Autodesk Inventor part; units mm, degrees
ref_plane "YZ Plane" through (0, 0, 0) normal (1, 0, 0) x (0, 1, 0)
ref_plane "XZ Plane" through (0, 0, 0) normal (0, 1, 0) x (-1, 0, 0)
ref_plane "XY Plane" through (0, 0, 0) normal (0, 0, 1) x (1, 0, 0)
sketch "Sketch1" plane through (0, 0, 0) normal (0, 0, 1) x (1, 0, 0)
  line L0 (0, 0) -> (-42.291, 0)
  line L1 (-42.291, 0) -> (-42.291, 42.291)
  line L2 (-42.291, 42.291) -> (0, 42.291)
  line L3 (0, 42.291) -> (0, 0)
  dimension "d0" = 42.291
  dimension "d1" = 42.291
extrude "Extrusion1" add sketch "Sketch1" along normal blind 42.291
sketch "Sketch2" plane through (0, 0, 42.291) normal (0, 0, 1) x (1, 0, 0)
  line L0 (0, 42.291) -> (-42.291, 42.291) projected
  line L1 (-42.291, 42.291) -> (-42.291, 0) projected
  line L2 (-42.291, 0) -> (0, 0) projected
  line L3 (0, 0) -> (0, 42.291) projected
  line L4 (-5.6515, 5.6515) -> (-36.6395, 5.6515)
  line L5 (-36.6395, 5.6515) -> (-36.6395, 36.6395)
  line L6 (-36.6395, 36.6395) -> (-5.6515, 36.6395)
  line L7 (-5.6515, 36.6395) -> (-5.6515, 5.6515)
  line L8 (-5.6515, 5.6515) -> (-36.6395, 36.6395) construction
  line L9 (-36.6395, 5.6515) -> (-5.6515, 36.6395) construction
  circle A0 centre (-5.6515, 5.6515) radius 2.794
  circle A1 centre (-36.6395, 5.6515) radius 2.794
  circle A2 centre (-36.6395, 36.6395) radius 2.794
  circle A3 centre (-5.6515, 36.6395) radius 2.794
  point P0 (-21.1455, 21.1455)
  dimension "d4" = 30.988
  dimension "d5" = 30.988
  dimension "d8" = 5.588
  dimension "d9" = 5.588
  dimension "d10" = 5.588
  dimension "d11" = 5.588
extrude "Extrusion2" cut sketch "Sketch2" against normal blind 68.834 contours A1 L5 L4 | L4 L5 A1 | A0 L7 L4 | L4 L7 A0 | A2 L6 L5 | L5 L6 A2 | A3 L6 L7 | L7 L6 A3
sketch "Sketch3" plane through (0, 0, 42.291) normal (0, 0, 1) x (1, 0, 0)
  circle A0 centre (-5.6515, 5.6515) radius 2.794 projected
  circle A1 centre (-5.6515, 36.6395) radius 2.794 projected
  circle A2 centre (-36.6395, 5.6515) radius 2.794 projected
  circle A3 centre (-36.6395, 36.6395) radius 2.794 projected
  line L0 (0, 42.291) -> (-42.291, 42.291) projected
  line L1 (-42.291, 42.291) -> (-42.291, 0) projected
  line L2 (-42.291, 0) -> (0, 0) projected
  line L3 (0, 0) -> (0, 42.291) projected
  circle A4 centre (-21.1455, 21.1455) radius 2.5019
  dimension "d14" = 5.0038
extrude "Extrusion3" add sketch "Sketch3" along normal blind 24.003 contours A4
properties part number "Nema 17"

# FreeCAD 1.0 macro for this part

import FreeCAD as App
import Part
import Sketcher

V = App.Vector
Q = App.Units.Quantity


def add_polygon(sketch, points):
    """Adds a closed chain of lines whose ends are joined by coincident constraints."""
    first, n = sketch.GeometryCount, len(points)
    for a, b in zip(points, points[1:] + points[:1]):
        sketch.addGeometry(Part.LineSegment(App.Vector(*a, 0), App.Vector(*b, 0)), False)
    for i in range(n):
        sketch.addConstraint(Sketcher.Constraint("Coincident", first + i, 2, first + (i + 1) % n, 1))

doc = App.newDocument("Part")
params = doc.addObject("Spreadsheet::Sheet", "Params")
for row, (alias, value) in enumerate([
    ("sketch1_width", "1.665 in"),
    ("pad1_length", "1.665 in"),
    ("sketch2_diameter", "0.22 in"),
    ("pocket1_length", "2.71 in"),
    ("sketch3_diameter", "0.197 in"),
    ("pad2_length", "0.945 in"),
], start=1):
    params.set(f"A{row}", alias)
    params.set(f"B{row}", "=" + value)
    params.setAlias(f"B{row}", alias)

body = doc.addObject("PartDesign::Body", "Body")

# Sketch on XY plane
sketch1 = doc.addObject("Sketcher::SketchObject", "Sketch")
body.addObject(sketch1)
sketch1.AttachmentSupport = (doc.XY_Plane, [""])
sketch1.MapMode = "FlatFace"
add_polygon(sketch1, [(-42, 0), (0, 0), (0, 42), (-42, 42)])  # lines 0-3
sketch1.addConstraint(Sketcher.Constraint("Horizontal", 0))
sketch1.addConstraint(Sketcher.Constraint("Vertical", 1))
sketch1.addConstraint(Sketcher.Constraint("Horizontal", 2))
sketch1.addConstraint(Sketcher.Constraint("Vertical", 3))
sketch1.addConstraint(Sketcher.Constraint("Coincident", 0, 2, -1, 1))
sketch1.addConstraint(Sketcher.Constraint("Equal", 2, 1))
sketch1.addConstraint(Sketcher.Constraint("DistanceX", 0, 1, 0, 2, Q("1.665 in")))
sketch1.setExpression("Constraints[10]", "Params.sketch1_width")
pad1 = doc.addObject("PartDesign::Pad", "Pad")
body.addObject(pad1)
pad1.Profile = sketch1
pad1.setExpression("Length", "Params.pad1_length")

# Sketch on XY plane
sketch2 = doc.addObject("Sketcher::SketchObject", "Sketch001")
body.addObject(sketch2)
sketch2.AttachmentSupport = (doc.XY_Plane, [""])
sketch2.MapMode = "FlatFace"
sketch2.AttachmentOffset = App.Placement(V(0, 0, 1.665 * 25.4), App.Rotation())
sketch2.addGeometry(Part.Circle(V(-36.6, 5.7, 0), V(0, 0, 1), 2.8), False)
sketch2.addGeometry(Part.Circle(V(-5.7, 5.7, 0), V(0, 0, 1), 2.8), False)
sketch2.addGeometry(Part.Circle(V(-36.6, 36.6, 0), V(0, 0, 1), 2.8), False)
sketch2.addGeometry(Part.Circle(V(-5.7, 36.6, 0), V(0, 0, 1), 2.8), False)
sketch2.addConstraint(Sketcher.Constraint("Equal", 0, 1))
sketch2.addConstraint(Sketcher.Constraint("Equal", 1, 2))
sketch2.addConstraint(Sketcher.Constraint("Equal", 2, 3))
sketch2.addConstraint(Sketcher.Constraint("Horizontal", 0, 3, 1, 3))
sketch2.addConstraint(Sketcher.Constraint("Horizontal", 2, 3, 3, 3))
sketch2.addConstraint(Sketcher.Constraint("Vertical", 0, 3, 2, 3))
sketch2.addConstraint(Sketcher.Constraint("Vertical", 1, 3, 3, 3))
sketch2.addConstraint(Sketcher.Constraint("Diameter", 0, Q("0.22 in")))
sketch2.addConstraint(Sketcher.Constraint("DistanceX", 0, 3, 1, 3, Q("1.22 in")))
sketch2.addConstraint(Sketcher.Constraint("DistanceY", 0, 3, 2, 3, Q("1.22 in")))
sketch2.addConstraint(Sketcher.Constraint("DistanceX", 0, 3, -1, 1, Q("1.4425 in")))
sketch2.addConstraint(Sketcher.Constraint("DistanceY", -1, 1, 0, 3, Q("0.2225 in")))
sketch2.setExpression("Constraints[7]", "Params.sketch2_diameter")
pocket1 = doc.addObject("PartDesign::Pocket", "Pocket")
body.addObject(pocket1)
pocket1.Profile = sketch2
pocket1.setExpression("Length", "Params.pocket1_length")

# Sketch on XY plane
sketch3 = doc.addObject("Sketcher::SketchObject", "Sketch002")
body.addObject(sketch3)
sketch3.AttachmentSupport = (doc.XY_Plane, [""])
sketch3.MapMode = "FlatFace"
sketch3.AttachmentOffset = App.Placement(V(0, 0, 1.665 * 25.4), App.Rotation())
sketch3.addGeometry(Part.Circle(V(-21.1, 21.1, 0), V(0, 0, 1), 2.5), False)
sketch3.addConstraint(Sketcher.Constraint("Diameter", 0, Q("0.197 in")))
sketch3.addConstraint(Sketcher.Constraint("DistanceX", 0, 3, -1, 1, Q("0.8325 in")))
sketch3.addConstraint(Sketcher.Constraint("DistanceY", -1, 1, 0, 3, Q("0.8325 in")))
sketch3.setExpression("Constraints[0]", "Params.sketch3_diameter")
pad2 = doc.addObject("PartDesign::Pad", "Pad001")
body.addObject(pad2)
pad2.Profile = sketch3
pad2.setExpression("Length", "Params.pad2_length")

doc.recompute()
